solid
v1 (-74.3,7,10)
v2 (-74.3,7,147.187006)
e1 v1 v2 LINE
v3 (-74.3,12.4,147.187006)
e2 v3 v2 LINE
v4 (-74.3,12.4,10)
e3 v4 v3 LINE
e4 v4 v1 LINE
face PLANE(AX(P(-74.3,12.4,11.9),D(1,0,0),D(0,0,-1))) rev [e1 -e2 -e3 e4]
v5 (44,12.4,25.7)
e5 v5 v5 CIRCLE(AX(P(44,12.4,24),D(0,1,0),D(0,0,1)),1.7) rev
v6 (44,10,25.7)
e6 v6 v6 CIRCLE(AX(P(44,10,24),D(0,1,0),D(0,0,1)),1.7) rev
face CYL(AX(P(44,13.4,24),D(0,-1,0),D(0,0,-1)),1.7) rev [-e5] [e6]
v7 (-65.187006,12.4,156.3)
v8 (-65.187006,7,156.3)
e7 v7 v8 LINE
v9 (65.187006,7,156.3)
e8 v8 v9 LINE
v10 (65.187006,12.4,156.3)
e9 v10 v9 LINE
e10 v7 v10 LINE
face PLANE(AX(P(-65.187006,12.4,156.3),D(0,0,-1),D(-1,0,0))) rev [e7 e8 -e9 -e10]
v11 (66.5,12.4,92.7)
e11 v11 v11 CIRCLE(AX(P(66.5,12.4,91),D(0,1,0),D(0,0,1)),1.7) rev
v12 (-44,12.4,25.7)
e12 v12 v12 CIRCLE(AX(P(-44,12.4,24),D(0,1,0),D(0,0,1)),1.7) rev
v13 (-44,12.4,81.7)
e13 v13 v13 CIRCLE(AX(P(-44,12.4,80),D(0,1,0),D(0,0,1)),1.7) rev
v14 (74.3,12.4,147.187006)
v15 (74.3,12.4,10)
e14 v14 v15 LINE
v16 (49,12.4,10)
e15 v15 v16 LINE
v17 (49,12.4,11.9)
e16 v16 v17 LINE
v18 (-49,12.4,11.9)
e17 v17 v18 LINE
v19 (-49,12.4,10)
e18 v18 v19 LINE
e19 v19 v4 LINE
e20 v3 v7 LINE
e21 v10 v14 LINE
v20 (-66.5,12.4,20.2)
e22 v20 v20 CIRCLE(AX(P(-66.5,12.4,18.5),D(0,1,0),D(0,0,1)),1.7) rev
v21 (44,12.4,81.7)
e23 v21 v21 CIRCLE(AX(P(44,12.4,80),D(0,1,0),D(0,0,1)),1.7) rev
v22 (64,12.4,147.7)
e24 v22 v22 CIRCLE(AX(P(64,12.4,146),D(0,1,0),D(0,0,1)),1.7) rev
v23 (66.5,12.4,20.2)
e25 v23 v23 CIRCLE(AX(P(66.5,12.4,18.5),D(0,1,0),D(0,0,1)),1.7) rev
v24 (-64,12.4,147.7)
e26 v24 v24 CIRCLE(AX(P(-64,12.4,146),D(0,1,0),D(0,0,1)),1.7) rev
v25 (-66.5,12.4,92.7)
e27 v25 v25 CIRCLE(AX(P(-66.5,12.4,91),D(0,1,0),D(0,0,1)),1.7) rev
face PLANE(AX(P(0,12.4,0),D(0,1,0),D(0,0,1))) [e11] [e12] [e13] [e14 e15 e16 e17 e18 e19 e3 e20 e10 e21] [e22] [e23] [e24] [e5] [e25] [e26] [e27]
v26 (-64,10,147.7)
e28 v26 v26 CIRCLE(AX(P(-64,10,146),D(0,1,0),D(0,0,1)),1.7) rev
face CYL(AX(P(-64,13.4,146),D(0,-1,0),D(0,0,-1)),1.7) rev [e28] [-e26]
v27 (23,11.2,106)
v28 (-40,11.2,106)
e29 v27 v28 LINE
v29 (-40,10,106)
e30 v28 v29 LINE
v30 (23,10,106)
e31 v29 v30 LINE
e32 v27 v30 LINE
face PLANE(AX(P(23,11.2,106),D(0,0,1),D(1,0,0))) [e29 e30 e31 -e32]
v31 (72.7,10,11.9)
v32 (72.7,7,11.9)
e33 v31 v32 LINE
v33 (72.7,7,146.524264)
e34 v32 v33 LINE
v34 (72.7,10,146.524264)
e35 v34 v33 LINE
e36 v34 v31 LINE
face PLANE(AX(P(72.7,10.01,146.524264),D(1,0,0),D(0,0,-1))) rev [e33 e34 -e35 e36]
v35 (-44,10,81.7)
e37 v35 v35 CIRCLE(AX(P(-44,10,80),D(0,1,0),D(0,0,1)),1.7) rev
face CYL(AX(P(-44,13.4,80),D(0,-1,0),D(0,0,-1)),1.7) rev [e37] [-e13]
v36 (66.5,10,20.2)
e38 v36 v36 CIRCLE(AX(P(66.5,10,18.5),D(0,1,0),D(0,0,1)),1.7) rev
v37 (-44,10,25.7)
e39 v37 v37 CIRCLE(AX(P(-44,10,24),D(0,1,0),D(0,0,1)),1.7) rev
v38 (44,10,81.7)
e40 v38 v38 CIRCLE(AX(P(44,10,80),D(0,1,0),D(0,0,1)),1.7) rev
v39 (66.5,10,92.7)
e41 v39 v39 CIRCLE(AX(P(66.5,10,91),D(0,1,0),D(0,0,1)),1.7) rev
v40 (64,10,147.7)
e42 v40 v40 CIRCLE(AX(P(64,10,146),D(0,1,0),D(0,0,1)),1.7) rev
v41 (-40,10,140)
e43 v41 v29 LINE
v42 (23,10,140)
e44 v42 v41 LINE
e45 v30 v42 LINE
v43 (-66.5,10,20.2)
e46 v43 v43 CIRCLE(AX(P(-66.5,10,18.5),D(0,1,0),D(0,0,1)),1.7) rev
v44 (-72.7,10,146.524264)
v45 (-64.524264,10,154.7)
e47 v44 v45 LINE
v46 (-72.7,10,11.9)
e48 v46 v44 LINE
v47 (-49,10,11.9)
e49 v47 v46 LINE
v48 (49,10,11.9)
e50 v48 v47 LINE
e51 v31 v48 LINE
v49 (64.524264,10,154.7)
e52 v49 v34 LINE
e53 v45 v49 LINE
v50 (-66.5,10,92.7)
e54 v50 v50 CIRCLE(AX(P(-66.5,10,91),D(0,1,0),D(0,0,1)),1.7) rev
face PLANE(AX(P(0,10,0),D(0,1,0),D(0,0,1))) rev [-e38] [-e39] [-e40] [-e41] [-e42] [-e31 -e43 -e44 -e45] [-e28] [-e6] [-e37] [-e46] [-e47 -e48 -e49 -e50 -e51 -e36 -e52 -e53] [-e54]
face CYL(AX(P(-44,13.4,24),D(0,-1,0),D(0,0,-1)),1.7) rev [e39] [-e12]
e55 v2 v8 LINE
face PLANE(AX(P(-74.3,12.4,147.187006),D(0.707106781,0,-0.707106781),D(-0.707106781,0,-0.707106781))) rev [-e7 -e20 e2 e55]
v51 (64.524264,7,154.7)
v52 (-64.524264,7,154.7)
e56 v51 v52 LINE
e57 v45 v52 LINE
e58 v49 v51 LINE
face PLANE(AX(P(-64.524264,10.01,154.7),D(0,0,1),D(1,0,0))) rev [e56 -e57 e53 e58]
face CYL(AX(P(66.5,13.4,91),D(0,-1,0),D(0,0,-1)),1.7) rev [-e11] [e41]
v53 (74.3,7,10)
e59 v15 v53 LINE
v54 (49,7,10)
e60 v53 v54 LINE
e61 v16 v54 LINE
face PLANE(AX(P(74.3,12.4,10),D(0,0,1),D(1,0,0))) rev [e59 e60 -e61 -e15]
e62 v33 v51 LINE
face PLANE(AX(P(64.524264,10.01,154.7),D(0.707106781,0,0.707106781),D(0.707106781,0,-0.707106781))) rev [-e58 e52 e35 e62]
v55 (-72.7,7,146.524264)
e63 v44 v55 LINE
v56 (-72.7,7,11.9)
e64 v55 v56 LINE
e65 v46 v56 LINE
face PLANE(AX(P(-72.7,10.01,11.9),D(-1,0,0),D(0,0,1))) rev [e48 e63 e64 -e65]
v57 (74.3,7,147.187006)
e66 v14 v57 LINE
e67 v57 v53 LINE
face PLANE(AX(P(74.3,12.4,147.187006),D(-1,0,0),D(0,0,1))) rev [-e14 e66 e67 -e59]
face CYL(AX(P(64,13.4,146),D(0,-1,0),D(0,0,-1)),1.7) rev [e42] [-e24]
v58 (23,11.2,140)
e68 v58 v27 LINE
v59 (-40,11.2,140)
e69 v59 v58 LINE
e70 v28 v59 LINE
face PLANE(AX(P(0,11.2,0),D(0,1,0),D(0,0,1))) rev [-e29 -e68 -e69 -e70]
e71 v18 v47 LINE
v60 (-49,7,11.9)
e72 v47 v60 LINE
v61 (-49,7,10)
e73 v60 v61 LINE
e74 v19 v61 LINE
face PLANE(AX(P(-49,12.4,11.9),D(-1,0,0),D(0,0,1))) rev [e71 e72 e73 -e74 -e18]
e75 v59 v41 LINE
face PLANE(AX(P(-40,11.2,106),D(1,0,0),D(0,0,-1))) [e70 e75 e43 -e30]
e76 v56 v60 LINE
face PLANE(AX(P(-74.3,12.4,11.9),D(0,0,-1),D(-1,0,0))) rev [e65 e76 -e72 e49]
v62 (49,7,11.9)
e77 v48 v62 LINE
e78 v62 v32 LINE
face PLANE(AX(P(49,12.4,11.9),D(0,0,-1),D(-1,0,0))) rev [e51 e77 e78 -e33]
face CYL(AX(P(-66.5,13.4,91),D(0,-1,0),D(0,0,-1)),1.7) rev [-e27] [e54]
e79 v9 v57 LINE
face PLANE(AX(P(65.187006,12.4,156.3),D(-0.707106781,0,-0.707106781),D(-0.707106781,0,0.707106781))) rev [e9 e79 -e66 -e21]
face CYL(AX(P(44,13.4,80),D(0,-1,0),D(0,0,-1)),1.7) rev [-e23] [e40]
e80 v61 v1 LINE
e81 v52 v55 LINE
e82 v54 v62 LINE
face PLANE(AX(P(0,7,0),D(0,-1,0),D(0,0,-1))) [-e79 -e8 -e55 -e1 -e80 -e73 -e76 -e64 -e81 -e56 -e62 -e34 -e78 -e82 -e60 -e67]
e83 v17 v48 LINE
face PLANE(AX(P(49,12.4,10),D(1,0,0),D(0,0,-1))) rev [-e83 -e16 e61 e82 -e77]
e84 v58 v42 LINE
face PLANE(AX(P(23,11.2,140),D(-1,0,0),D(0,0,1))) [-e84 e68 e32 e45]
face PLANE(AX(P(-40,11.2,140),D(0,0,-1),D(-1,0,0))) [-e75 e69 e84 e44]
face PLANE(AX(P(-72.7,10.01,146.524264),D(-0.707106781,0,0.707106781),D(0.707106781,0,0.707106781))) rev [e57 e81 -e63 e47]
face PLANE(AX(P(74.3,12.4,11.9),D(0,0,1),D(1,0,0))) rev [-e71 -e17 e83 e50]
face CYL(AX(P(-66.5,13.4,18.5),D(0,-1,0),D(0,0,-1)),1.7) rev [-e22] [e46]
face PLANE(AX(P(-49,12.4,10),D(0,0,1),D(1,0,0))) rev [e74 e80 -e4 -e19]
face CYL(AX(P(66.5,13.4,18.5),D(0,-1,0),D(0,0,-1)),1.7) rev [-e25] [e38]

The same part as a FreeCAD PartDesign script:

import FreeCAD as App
import Part
import Sketcher
from FreeCAD import Vector
Q = App.Units.Quantity

doc = App.newDocument("Part")
params = doc.addObject("Spreadsheet::Sheet", "Params")
for row, (alias, value) in enumerate([
    ("sketch1_width", "148.6 mm"),
    ("pad1_length", "2.4 mm"),
    ("sketch2_width", "1.6 mm"),
    ("pad2_length", "3.01 mm"),
    ("sketch3_width", "25.3 mm"),
    ("sketch3_height", "1.9 mm"),
    ("pad3_length", "5.4 mm"),
    ("sketch4_width", "25.3 mm"),
    ("sketch4_height", "1.9 mm"),
    ("pad4_length", "5.4 mm"),
    ("sketch5_width", "63 mm"),
    ("sketch5_height", "34 mm"),
    ("pocket1_length", "1.7 mm"),
    ("sketch6_diameter", "3.4 mm"),
    ("pocket2_length", "4.4 mm"),
], start=1):
    params.set(f"A{row}", alias)
    params.set(f"B{row}", "=" + value)
    params.setAlias(f"B{row}", alias)

body = doc.addObject("PartDesign::Body", "Body")

sketch1 = body.newObject("Sketcher::SketchObject", "Sketch")
sketch1.AttachmentSupport = (doc.getObject("XZ_Plane"), [""])
sketch1.MapMode = "FlatFace"
sketch1.AttachmentOffset = App.Placement(Vector(0, 0, -10), App.Rotation())
sketch1.addGeometry(Part.LineSegment(Vector(-65.187006, 156.3, 0), Vector(65.187006, 156.3, 0)), False)
sketch1.addGeometry(Part.LineSegment(Vector(65.187006, 156.3, 0), Vector(74.3, 147.187006, 0)), False)
sketch1.addGeometry(Part.LineSegment(Vector(74.3, 147.187006, 0), Vector(74.3, 11.9, 0)), False)
sketch1.addGeometry(Part.LineSegment(Vector(74.3, 11.9, 0), Vector(-74.3, 11.9, 0)), False)
sketch1.addGeometry(Part.LineSegment(Vector(-74.3, 11.9, 0), Vector(-74.3, 147.187006, 0)), False)
sketch1.addGeometry(Part.LineSegment(Vector(-74.3, 147.187006, 0), Vector(-65.187006, 156.3, 0)), False)
sketch1.addConstraint(Sketcher.Constraint("Coincident", 0, 2, 1, 1))
sketch1.addConstraint(Sketcher.Constraint("Coincident", 1, 2, 2, 1))
sketch1.addConstraint(Sketcher.Constraint("Coincident", 2, 2, 3, 1))
sketch1.addConstraint(Sketcher.Constraint("Coincident", 3, 2, 4, 1))
sketch1.addConstraint(Sketcher.Constraint("Coincident", 4, 2, 5, 1))
sketch1.addConstraint(Sketcher.Constraint("Coincident", 5, 2, 0, 1))
sketch1.addConstraint(Sketcher.Constraint("Horizontal", 0))
sketch1.addConstraint(Sketcher.Constraint("Vertical", 2))
sketch1.addConstraint(Sketcher.Constraint("Horizontal", 3))
sketch1.addConstraint(Sketcher.Constraint("Vertical", 4))
sketch1.addConstraint(Sketcher.Constraint("Symmetric", 1, 2, 4, 2, -2))
sketch1.addConstraint(Sketcher.Constraint("Perpendicular", 1, 5))
sketch1.addConstraint(Sketcher.Constraint("Equal", 1, 5))
sketch1.addConstraint(Sketcher.Constraint("DistanceX", 3, 2, 3, 1, Q("148.6 mm")))
sketch1.addConstraint(Sketcher.Constraint("DistanceY", -1, 1, 0, 2, Q("156.3 mm")))
sketch1.addConstraint(Sketcher.Constraint("DistanceY", -1, 1, 2, 2, Q("11.9 mm")))
sketch1.addConstraint(Sketcher.Constraint("DistanceX", 0, 1, 0, 2, Q("130.374012 mm")))
sketch1.setExpression("Constraints[13]", "Params.sketch1_width")
pad1 = body.newObject("PartDesign::Pad", "Pad")
pad1.Profile = sketch1
pad1.setExpression("Length", "Params.pad1_length")
pad1.Reversed = True

sketch2 = body.newObject("Sketcher::SketchObject", "Sketch001")
sketch2.AttachmentSupport = (doc.getObject("XZ_Plane"), [""])
sketch2.MapMode = "FlatFace"
sketch2.AttachmentOffset = App.Placement(Vector(0, 0, -7), App.Rotation())
sketch2.addGeometry(Part.LineSegment(Vector(74.3, 147.187006, 0), Vector(74.3, 11.9, 0)), False)
sketch2.addGeometry(Part.LineSegment(Vector(74.3, 11.9, 0), Vector(72.7, 11.9, 0)), False)
sketch2.addGeometry(Part.LineSegment(Vector(72.7, 11.9, 0), Vector(72.7, 146.524264, 0)), False)
sketch2.addGeometry(Part.LineSegment(Vector(72.7, 146.524264, 0), Vector(64.524264, 154.7, 0)), False)
sketch2.addGeometry(Part.LineSegment(Vector(64.524264, 154.7, 0), Vector(-64.524264, 154.7, 0)), False)
sketch2.addGeometry(Part.LineSegment(Vector(-64.524264, 154.7, 0), Vector(-72.7, 146.524264, 0)), False)
sketch2.addGeometry(Part.LineSegment(Vector(-72.7, 146.524264, 0), Vector(-72.7, 11.9, 0)), False)
sketch2.addGeometry(Part.LineSegment(Vector(-72.7, 11.9, 0), Vector(-74.3, 11.9, 0)), False)
sketch2.addGeometry(Part.LineSegment(Vector(-74.3, 11.9, 0), Vector(-74.3, 147.187006, 0)), False)
sketch2.addGeometry(Part.LineSegment(Vector(-74.3, 147.187006, 0), Vector(-65.187006, 156.3, 0)), False)
sketch2.addGeometry(Part.LineSegment(Vector(-65.187006, 156.3, 0), Vector(65.187006, 156.3, 0)), False)
sketch2.addGeometry(Part.LineSegment(Vector(65.187006, 156.3, 0), Vector(74.3, 147.187006, 0)), False)
sketch2.addConstraint(Sketcher.Constraint("Coincident", 0, 2, 1, 1))
sketch2.addConstraint(Sketcher.Constraint("Coincident", 1, 2, 2, 1))
sketch2.addConstraint(Sketcher.Constraint("Coincident", 2, 2, 3, 1))
sketch2.addConstraint(Sketcher.Constraint("Coincident", 3, 2, 4, 1))
sketch2.addConstraint(Sketcher.Constraint("Coincident", 4, 2, 5, 1))
sketch2.addConstraint(Sketcher.Constraint("Coincident", 5, 2, 6, 1))
sketch2.addConstraint(Sketcher.Constraint("Coincident", 6, 2, 7, 1))
sketch2.addConstraint(Sketcher.Constraint("Coincident", 7, 2, 8, 1))
sketch2.addConstraint(Sketcher.Constraint("Coincident", 8, 2, 9, 1))
sketch2.addConstraint(Sketcher.Constraint("Coincident", 9, 2, 10, 1))
sketch2.addConstraint(Sketcher.Constraint("Coincident", 10, 2, 11, 1))
sketch2.addConstraint(Sketcher.Constraint("Coincident", 11, 2, 0, 1))
sketch2.addConstraint(Sketcher.Constraint("Vertical", 0))
sketch2.addConstraint(Sketcher.Constraint("Horizontal", 1))
sketch2.addConstraint(Sketcher.Constraint("Vertical", 2))
sketch2.addConstraint(Sketcher.Constraint("Horizontal", 4))
sketch2.addConstraint(Sketcher.Constraint("Vertical", 6))
sketch2.addConstraint(Sketcher.Constraint("Horizontal", 7))
sketch2.addConstraint(Sketcher.Constraint("Vertical", 8))
sketch2.addConstraint(Sketcher.Constraint("Horizontal", 10))
sketch2.addConstraint(Sketcher.Constraint("Symmetric", 2, 2, 5, 2, -2))
sketch2.addConstraint(Sketcher.Constraint("Symmetric", 0, 2, 7, 2, -2))
sketch2.addConstraint(Sketcher.Constraint("Perpendicular", 3, 5))
sketch2.addConstraint(Sketcher.Constraint("Parallel", 5, 9))
sketch2.addConstraint(Sketcher.Constraint("Perpendicular", 9, 11))
sketch2.addConstraint(Sketcher.Constraint("Horizontal", 8, 2, 11, 2))
sketch2.addConstraint(Sketcher.Constraint("Equal", 3, 5))
sketch2.addConstraint(Sketcher.Constraint("DistanceX", 1, 2, 1, 1, Q("1.6 mm")))
sketch2.addConstraint(Sketcher.Constraint("DistanceX", 5, 2, 0, 2, Q("147 mm")))
sketch2.addConstraint(Sketcher.Constraint("DistanceY", -1, 1, 0, 2, Q("11.9 mm")))
sketch2.addConstraint(Sketcher.Constraint("DistanceY", -1, 1, 3, 2, Q("154.7 mm")))
sketch2.addConstraint(Sketcher.Constraint("DistanceY", -1, 1, 9, 2, Q("156.3 mm")))
sketch2.addConstraint(Sketcher.Constraint("DistanceX", 4, 2, 4, 1, Q("129.048528 mm")))
sketch2.addConstraint(Sketcher.Constraint("DistanceX", 10, 1, 10, 2, Q("130.374012 mm")))
sketch2.setExpression("Constraints[27]", "Params.sketch2_width")
pad2 = body.newObject("PartDesign::Pad", "Pad001")
pad2.Profile = sketch2
pad2.setExpression("Length", "Params.pad2_length")
pad2.Reversed = True

sketch3 = body.newObject("Sketcher::SketchObject", "Sketch002")
sketch3.AttachmentSupport = (doc.getObject("XZ_Plane"), [""])
sketch3.MapMode = "FlatFace"
sketch3.AttachmentOffset = App.Placement(Vector(0, 0, -7), App.Rotation())
sketch3.addGeometry(Part.LineSegment(Vector(-74.3, 10, 0), Vector(-74.3, 11.9, 0)), False)
sketch3.addGeometry(Part.LineSegment(Vector(-74.3, 11.9, 0), Vector(-49, 11.9, 0)), False)
sketch3.addGeometry(Part.LineSegment(Vector(-49, 11.9, 0), Vector(-49, 10, 0)), False)
sketch3.addGeometry(Part.LineSegment(Vector(-49, 10, 0), Vector(-74.3, 10, 0)), False)
sketch3.addConstraint(Sketcher.Constraint("Coincident", 0, 2, 1, 1))
sketch3.addConstraint(Sketcher.Constraint("Coincident", 1, 2, 2, 1))
sketch3.addConstraint(Sketcher.Constraint("Coincident", 2, 2, 3, 1))
sketch3.addConstraint(Sketcher.Constraint("Coincident", 3, 2, 0, 1))
sketch3.addConstraint(Sketcher.Constraint("Vertical", 0))
sketch3.addConstraint(Sketcher.Constraint("Horizontal", 1))
sketch3.addConstraint(Sketcher.Constraint("Vertical", 2))
sketch3.addConstraint(Sketcher.Constraint("Horizontal", 3))
sketch3.addConstraint(Sketcher.Constraint("DistanceX", 1, 1, 1, 2, Q("25.3 mm")))
sketch3.addConstraint(Sketcher.Constraint("DistanceY", 0, 1, 0, 2, Q("1.9 mm")))
sketch3.addConstraint(Sketcher.Constraint("DistanceX", 1, 2, -1, 1, Q("49 mm")))
sketch3.addConstraint(Sketcher.Constraint("DistanceY", -1, 1, 2, 2, Q("10 mm")))
sketch3.setExpression("Constraints[8]", "Params.sketch3_width")
sketch3.setExpression("Constraints[9]", "Params.sketch3_height")
pad3 = body.newObject("PartDesign::Pad", "Pad002")
pad3.Profile = sketch3
pad3.setExpression("Length", "Params.pad3_length")
pad3.Reversed = True

sketch4 = body.newObject("Sketcher::SketchObject", "Sketch003")
sketch4.AttachmentSupport = (doc.getObject("XZ_Plane"), [""])
sketch4.MapMode = "FlatFace"
sketch4.AttachmentOffset = App.Placement(Vector(0, 0, -7), App.Rotation())
sketch4.addGeometry(Part.LineSegment(Vector(49, 10, 0), Vector(49, 11.9, 0)), False)
sketch4.addGeometry(Part.LineSegment(Vector(49, 11.9, 0), Vector(74.3, 11.9, 0)), False)
sketch4.addGeometry(Part.LineSegment(Vector(74.3, 11.9, 0), Vector(74.3, 10, 0)), False)
sketch4.addGeometry(Part.LineSegment(Vector(74.3, 10, 0), Vector(49, 10, 0)), False)
sketch4.addConstraint(Sketcher.Constraint("Coincident", 0, 2, 1, 1))
sketch4.addConstraint(Sketcher.Constraint("Coincident", 1, 2, 2, 1))
sketch4.addConstraint(Sketcher.Constraint("Coincident", 2, 2, 3, 1))
sketch4.addConstraint(Sketcher.Constraint("Coincident", 3, 2, 0, 1))
sketch4.addConstraint(Sketcher.Constraint("Vertical", 0))
sketch4.addConstraint(Sketcher.Constraint("Horizontal", 1))
sketch4.addConstraint(Sketcher.Constraint("Vertical", 2))
sketch4.addConstraint(Sketcher.Constraint("Horizontal", 3))
sketch4.addConstraint(Sketcher.Constraint("DistanceX", 1, 1, 1, 2, Q("25.3 mm")))
sketch4.addConstraint(Sketcher.Constraint("DistanceY", 0, 1, 0, 2, Q("1.9 mm")))
sketch4.addConstraint(Sketcher.Constraint("DistanceX", -1, 1, 0, 2, Q("49 mm")))
sketch4.addConstraint(Sketcher.Constraint("DistanceY", -1, 1, 2, 2, Q("10 mm")))
sketch4.setExpression("Constraints[8]", "Params.sketch4_width")
sketch4.setExpression("Constraints[9]", "Params.sketch4_height")
pad4 = body.newObject("PartDesign::Pad", "Pad003")
pad4.Profile = sketch4
pad4.setExpression("Length", "Params.pad4_length")
pad4.Reversed = True

sketch5 = body.newObject("Sketcher::SketchObject", "Sketch004")
sketch5.AttachmentSupport = (doc.getObject("XZ_Plane"), [""])
sketch5.MapMode = "FlatFace"
sketch5.AttachmentOffset = App.Placement(Vector(0, 0, -9.5), App.Rotation())
sketch5.addGeometry(Part.LineSegment(Vector(-40, 106, 0), Vector(-40, 140, 0)), False)
sketch5.addGeometry(Part.LineSegment(Vector(-40, 140, 0), Vector(23, 140, 0)), False)
sketch5.addGeometry(Part.LineSegment(Vector(23, 140, 0), Vector(23, 106, 0)), False)
sketch5.addGeometry(Part.LineSegment(Vector(23, 106, 0), Vector(-40, 106, 0)), False)
sketch5.addConstraint(Sketcher.Constraint("Coincident", 0, 2, 1, 1))
sketch5.addConstraint(Sketcher.Constraint("Coincident", 1, 2, 2, 1))
sketch5.addConstraint(Sketcher.Constraint("Coincident", 2, 2, 3, 1))
sketch5.addConstraint(Sketcher.Constraint("Coincident", 3, 2, 0, 1))
sketch5.addConstraint(Sketcher.Constraint("Vertical", 0))
sketch5.addConstraint(Sketcher.Constraint("Horizontal", 1))
sketch5.addConstraint(Sketcher.Constraint("Vertical", 2))
sketch5.addConstraint(Sketcher.Constraint("Horizontal", 3))
sketch5.addConstraint(Sketcher.Constraint("DistanceX", 1, 1, 1, 2, Q("63 mm")))
sketch5.addConstraint(Sketcher.Constraint("DistanceY", 0, 1, 0, 2, Q("34 mm")))
sketch5.addConstraint(Sketcher.Constraint("DistanceX", 0, 2, -1, 1, Q("40 mm")))
sketch5.addConstraint(Sketcher.Constraint("DistanceY", -1, 1, 0, 2, Q("140 mm")))
sketch5.setExpression("Constraints[8]", "Params.sketch5_width")
sketch5.setExpression("Constraints[9]", "Params.sketch5_height")
pocket1 = body.newObject("PartDesign::Pocket", "Pocket")
pocket1.Profile = sketch5
pocket1.setExpression("Length", "Params.pocket1_length")

sketch6 = body.newObject("Sketcher::SketchObject", "Sketch005")
sketch6.AttachmentSupport = (doc.getObject("XZ_Plane"), [""])
sketch6.MapMode = "FlatFace"
sketch6.AttachmentOffset = App.Placement(Vector(0, 0, -9), App.Rotation())
sketch6.addGeometry(Part.Circle(Vector(-66.5, 18.5, 0), Vector(0, 0, 1), 1.7), False)
sketch6.addGeometry(Part.Circle(Vector(66.5, 18.5, 0), Vector(0, 0, 1), 1.7), False)
sketch6.addGeometry(Part.Circle(Vector(-66.5, 91, 0), Vector(0, 0, 1), 1.7), False)
sketch6.addGeometry(Part.Circle(Vector(66.5, 91, 0), Vector(0, 0, 1), 1.7), False)
sketch6.addGeometry(Part.Circle(Vector(-64, 146, 0), Vector(0, 0, 1), 1.7), False)
sketch6.addGeometry(Part.Circle(Vector(64, 146, 0), Vector(0, 0, 1), 1.7), False)
sketch6.addGeometry(Part.Circle(Vector(-44, 24, 0), Vector(0, 0, 1), 1.7), False)
sketch6.addGeometry(Part.Circle(Vector(-44, 80, 0), Vector(0, 0, 1), 1.7), False)
sketch6.addGeometry(Part.Circle(Vector(44, 24, 0), Vector(0, 0, 1), 1.7), False)
sketch6.addGeometry(Part.Circle(Vector(44, 80, 0), Vector(0, 0, 1), 1.7), False)
sketch6.addConstraint(Sketcher.Constraint("Equal", 0, 1))
sketch6.addConstraint(Sketcher.Constraint("Equal", 1, 2))
sketch6.addConstraint(Sketcher.Constraint("Equal", 2, 3))
sketch6.addConstraint(Sketcher.Constraint("Equal", 3, 4))
sketch6.addConstraint(Sketcher.Constraint("Equal", 4, 5))
sketch6.addConstraint(Sketcher.Constraint("Equal", 5, 6))
sketch6.addConstraint(Sketcher.Constraint("Equal", 6, 7))
sketch6.addConstraint(Sketcher.Constraint("Equal", 7, 8))
sketch6.addConstraint(Sketcher.Constraint("Equal", 8, 9))
sketch6.addConstraint(Sketcher.Constraint("Symmetric", 0, 3, 1, 3, -2))
sketch6.addConstraint(Sketcher.Constraint("Symmetric", 2, 3, 3, 3, -2))
sketch6.addConstraint(Sketcher.Constraint("Symmetric", 4, 3, 5, 3, -2))
sketch6.addConstraint(Sketcher.Constraint("Symmetric", 6, 3, 8, 3, -2))
sketch6.addConstraint(Sketcher.Constraint("Symmetric", 7, 3, 9, 3, -2))
sketch6.addConstraint(Sketcher.Constraint("Vertical", 0, 3, 2, 3))
sketch6.addConstraint(Sketcher.Constraint("Vertical", 6, 3, 7, 3))
sketch6.addConstraint(Sketcher.Constraint("Diameter", 0, Q("3.4 mm")))
sketch6.addConstraint(Sketcher.Constraint("DistanceY", -1, 1, 2, 3, Q("91 mm")))
sketch6.addConstraint(Sketcher.Constraint("DistanceX", 4, 3, -1, 1, Q("64 mm")))
sketch6.addConstraint(Sketcher.Constraint("DistanceY", -1, 1, 4, 3, Q("146 mm")))
sketch6.addConstraint(Sketcher.Constraint("DistanceX", 6, 3, -1, 1, Q("44 mm")))
sketch6.addConstraint(Sketcher.Constraint("DistanceY", -1, 1, 6, 3, Q("24 mm")))
sketch6.addConstraint(Sketcher.Constraint("DistanceY", -1, 1, 7, 3, Q("80 mm")))
sketch6.addConstraint(Sketcher.Constraint("DistanceX", 0, 3, 1, 3, Q("133 mm")))
sketch6.addConstraint(Sketcher.Constraint("DistanceY", -1, 1, 0, 3, Q("18.5 mm")))
sketch6.setExpression("Constraints[16]", "Params.sketch6_diameter")
pocket2 = body.newObject("PartDesign::Pocket", "Pocket001")
pocket2.Profile = sketch6
pocket2.setExpression("Length", "Params.pocket2_length")

doc.recompute()
